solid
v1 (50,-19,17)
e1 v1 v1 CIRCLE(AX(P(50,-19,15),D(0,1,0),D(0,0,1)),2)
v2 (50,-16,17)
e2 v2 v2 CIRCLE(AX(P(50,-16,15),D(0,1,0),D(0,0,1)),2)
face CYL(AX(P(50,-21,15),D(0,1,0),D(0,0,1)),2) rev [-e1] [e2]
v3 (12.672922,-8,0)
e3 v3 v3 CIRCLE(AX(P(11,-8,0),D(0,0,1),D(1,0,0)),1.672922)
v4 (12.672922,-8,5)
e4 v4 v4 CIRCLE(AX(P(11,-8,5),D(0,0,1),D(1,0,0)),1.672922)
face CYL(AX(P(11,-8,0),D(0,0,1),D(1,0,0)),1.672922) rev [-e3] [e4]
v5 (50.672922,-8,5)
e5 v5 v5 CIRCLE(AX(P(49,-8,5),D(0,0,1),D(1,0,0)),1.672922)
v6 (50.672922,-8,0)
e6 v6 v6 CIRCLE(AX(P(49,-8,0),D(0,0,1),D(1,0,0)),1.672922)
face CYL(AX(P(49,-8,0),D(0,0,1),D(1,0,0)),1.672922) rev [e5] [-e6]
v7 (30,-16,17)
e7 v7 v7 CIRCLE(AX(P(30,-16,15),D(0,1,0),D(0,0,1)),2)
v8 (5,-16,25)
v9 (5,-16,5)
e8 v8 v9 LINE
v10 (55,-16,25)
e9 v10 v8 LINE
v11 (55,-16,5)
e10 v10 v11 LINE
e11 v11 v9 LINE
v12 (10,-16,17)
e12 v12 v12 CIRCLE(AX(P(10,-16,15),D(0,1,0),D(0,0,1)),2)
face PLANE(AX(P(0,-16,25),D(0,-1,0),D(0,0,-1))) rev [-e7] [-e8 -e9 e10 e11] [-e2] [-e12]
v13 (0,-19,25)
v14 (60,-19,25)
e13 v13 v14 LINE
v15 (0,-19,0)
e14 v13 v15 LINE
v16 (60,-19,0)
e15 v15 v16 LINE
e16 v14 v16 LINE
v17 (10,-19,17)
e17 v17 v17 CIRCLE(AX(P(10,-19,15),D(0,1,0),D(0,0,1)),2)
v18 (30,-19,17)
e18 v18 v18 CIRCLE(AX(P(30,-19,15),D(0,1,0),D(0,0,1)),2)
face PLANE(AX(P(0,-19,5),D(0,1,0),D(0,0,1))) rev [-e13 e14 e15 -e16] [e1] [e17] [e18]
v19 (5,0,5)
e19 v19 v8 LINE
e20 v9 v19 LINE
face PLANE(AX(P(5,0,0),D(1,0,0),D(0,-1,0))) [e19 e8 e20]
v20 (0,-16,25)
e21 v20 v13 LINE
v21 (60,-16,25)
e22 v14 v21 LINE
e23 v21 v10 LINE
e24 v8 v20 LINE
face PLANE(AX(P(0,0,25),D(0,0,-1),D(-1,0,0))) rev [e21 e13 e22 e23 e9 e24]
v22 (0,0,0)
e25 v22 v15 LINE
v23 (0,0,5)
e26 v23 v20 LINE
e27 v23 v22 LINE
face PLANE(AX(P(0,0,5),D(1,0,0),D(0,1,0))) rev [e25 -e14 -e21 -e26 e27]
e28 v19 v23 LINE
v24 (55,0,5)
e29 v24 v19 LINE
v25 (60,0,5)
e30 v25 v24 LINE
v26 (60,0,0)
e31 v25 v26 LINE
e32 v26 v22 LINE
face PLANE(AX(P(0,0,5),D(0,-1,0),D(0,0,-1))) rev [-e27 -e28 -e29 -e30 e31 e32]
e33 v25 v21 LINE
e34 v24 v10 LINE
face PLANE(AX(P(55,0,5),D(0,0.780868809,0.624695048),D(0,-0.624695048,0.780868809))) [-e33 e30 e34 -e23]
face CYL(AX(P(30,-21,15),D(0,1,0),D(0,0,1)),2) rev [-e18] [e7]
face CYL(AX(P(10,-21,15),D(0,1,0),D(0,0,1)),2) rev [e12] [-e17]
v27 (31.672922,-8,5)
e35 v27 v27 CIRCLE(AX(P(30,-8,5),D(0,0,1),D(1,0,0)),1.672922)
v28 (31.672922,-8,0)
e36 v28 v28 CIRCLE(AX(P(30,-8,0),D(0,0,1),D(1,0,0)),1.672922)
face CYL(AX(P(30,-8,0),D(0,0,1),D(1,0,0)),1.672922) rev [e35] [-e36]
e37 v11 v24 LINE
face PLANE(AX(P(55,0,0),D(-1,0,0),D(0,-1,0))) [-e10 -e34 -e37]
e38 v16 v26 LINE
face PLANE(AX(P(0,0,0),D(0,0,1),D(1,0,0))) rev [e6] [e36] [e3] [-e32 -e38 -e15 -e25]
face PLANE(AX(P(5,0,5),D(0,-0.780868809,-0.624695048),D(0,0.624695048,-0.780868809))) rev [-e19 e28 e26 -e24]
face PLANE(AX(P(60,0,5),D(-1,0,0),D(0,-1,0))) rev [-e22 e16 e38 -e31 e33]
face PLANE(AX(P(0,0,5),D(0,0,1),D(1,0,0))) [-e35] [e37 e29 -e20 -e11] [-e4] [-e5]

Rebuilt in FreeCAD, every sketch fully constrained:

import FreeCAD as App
import Part
import Sketcher
from FreeCAD import Vector


def add_polygon(sketch, points):
    """Adds a closed chain of lines whose ends are joined by coincident constraints."""
    first, n = sketch.GeometryCount, len(points)
    for a, b in zip(points, points[1:] + points[:1]):
        sketch.addGeometry(Part.LineSegment(App.Vector(*a, 0), App.Vector(*b, 0)), False)
    for i in range(n):
        sketch.addConstraint(Sketcher.Constraint("Coincident", first + i, 2, first + (i + 1) % n, 1))

doc = App.newDocument("Part")
body = doc.addObject("PartDesign::Body", "Body")

sketch1 = body.newObject("Sketcher::SketchObject", "Sketch")
sketch1.AttachmentSupport = (doc.getObject("XY_Plane"), [""])
sketch1.MapMode = "FlatFace"
add_polygon(sketch1, [(0, 0), (0, -19), (60, -19), (60, 0)])
sketch1.addConstraint(Sketcher.Constraint("Vertical", 0))
sketch1.addConstraint(Sketcher.Constraint("Horizontal", 1))
sketch1.addConstraint(Sketcher.Constraint("Vertical", 2))
sketch1.addConstraint(Sketcher.Constraint("Horizontal", 3))
sketch1.addConstraint(Sketcher.Constraint("Coincident", 3, 2, -1, 1))
sketch1.addConstraint(Sketcher.Constraint("DistanceX", 1, 1, 1, 2, 60.0))
sketch1.addConstraint(Sketcher.Constraint("DistanceY", 0, 2, 0, 1, 19.0))
pad1 = body.newObject("PartDesign::Pad", "Pad")
pad1.Profile = sketch1
pad1.Length = 5

sketch2 = body.newObject("Sketcher::SketchObject", "Sketch001")
sketch2.AttachmentSupport = (doc.getObject("XY_Plane"), [""])
sketch2.MapMode = "FlatFace"
sketch2.AttachmentOffset = App.Placement(Vector(0, 0, 5), App.Rotation())
add_polygon(sketch2, [(0, -16), (0, -19), (60, -19), (60, -16)])
sketch2.addConstraint(Sketcher.Constraint("Vertical", 0))
sketch2.addConstraint(Sketcher.Constraint("Horizontal", 1))
sketch2.addConstraint(Sketcher.Constraint("Vertical", 2))
sketch2.addConstraint(Sketcher.Constraint("Horizontal", 3))
sketch2.addConstraint(Sketcher.Constraint("PointOnObject", 0, 2, -2))
sketch2.addConstraint(Sketcher.Constraint("DistanceX", 1, 1, 1, 2, 60.0))
sketch2.addConstraint(Sketcher.Constraint("DistanceY", 0, 2, 0, 1, 3.0))
sketch2.addConstraint(Sketcher.Constraint("DistanceY", 0, 2, -1, 1, 19.0))
pad2 = body.newObject("PartDesign::Pad", "Pad001")
pad2.Profile = sketch2
pad2.Length = 20

sketch3 = body.newObject("Sketcher::SketchObject", "Sketch002")
sketch3.AttachmentSupport = (doc.getObject("YZ_Plane"), [""])
sketch3.MapMode = "FlatFace"
sketch3.AttachmentOffset = App.Placement(Vector(0, 0, 60), App.Rotation())
add_polygon(sketch3, [(0, 5), (-16, 25), (-16, 5)])
sketch3.addConstraint(Sketcher.Constraint("Vertical", 1))
sketch3.addConstraint(Sketcher.Constraint("Horizontal", 2))
sketch3.addConstraint(Sketcher.Constraint("PointOnObject", 2, 2, -2))
sketch3.addConstraint(Sketcher.Constraint("DistanceX", 2, 1, 2, 2, 16.0))
sketch3.addConstraint(Sketcher.Constraint("DistanceY", 1, 2, 1, 1, 20.0))
sketch3.addConstraint(Sketcher.Constraint("DistanceY", -1, 1, 0, 2, 25.0))
pad3 = body.newObject("PartDesign::Pad", "Pad002")
pad3.Profile = sketch3
pad3.Length = 5
pad3.Reversed = True
doc.recompute()

datumplane = body.newObject("PartDesign::Plane", "DatumPlane")
datumplane.AttachmentSupport = (doc.getObject("YZ_Plane"), [""])
datumplane.MapMode = "FlatFace"
datumplane.AttachmentOffset = App.Placement(Vector(0, 0, 30), App.Rotation())
mirrored = body.newObject("PartDesign::Mirrored", "Mirrored")
mirrored.Originals = [pad3]
mirrored.MirrorPlane = (datumplane, [""])
body.Tip = mirrored

sketch4 = body.newObject("Sketcher::SketchObject", "Sketch003")
sketch4.AttachmentSupport = (doc.getObject("XY_Plane"), [""])
sketch4.MapMode = "FlatFace"
sketch4.AttachmentOffset = App.Placement(Vector(0, 0, 5), App.Rotation())
sketch4.addGeometry(Part.Circle(Vector(11, -8, 0), Vector(0, 0, 1), 1.7), False)
sketch4.addGeometry(Part.Circle(Vector(30, -8, 0), Vector(0, 0, 1), 1.7), False)
sketch4.addGeometry(Part.Circle(Vector(49, -8, 0), Vector(0, 0, 1), 1.7), False)
sketch4.addConstraint(Sketcher.Constraint("Equal", 0, 1))
sketch4.addConstraint(Sketcher.Constraint("Equal", 1, 2))
sketch4.addConstraint(Sketcher.Constraint("Horizontal", 0, 3, 1, 3))
sketch4.addConstraint(Sketcher.Constraint("Horizontal", 1, 3, 2, 3))
sketch4.addConstraint(Sketcher.Constraint("DistanceX", -1, 1, 0, 3, 11.0))
sketch4.addConstraint(Sketcher.Constraint("DistanceY", 0, 3, -1, 1, 8.0))
sketch4.addConstraint(Sketcher.Constraint("DistanceX", -1, 1, 1, 3, 30.0))
sketch4.addConstraint(Sketcher.Constraint("DistanceX", -1, 1, 2, 3, 49.0))
sketch4.addConstraint(Sketcher.Constraint("Diameter", 0, 3.345843))
pocket1 = body.newObject("PartDesign::Pocket", "Pocket")
pocket1.Profile = sketch4
pocket1.Length = 5

sketch5 = body.newObject("Sketcher::SketchObject", "Sketch004")
sketch5.AttachmentSupport = (doc.getObject("XZ_Plane"), [""])
sketch5.MapMode = "FlatFace"
sketch5.AttachmentOffset = App.Placement(Vector(0, 0, 16), App.Rotation())
sketch5.addGeometry(Part.Circle(Vector(10, 15, 0), Vector(0, 0, 1), 2), False)
sketch5.addGeometry(Part.Circle(Vector(30, 15, 0), Vector(0, 0, 1), 2), False)
sketch5.addGeometry(Part.Circle(Vector(50, 15, 0), Vector(0, 0, 1), 2), False)
sketch5.addConstraint(Sketcher.Constraint("Equal", 0, 1))
sketch5.addConstraint(Sketcher.Constraint("Equal", 1, 2))
sketch5.addConstraint(Sketcher.Constraint("Horizontal", 0, 3, 1, 3))
sketch5.addConstraint(Sketcher.Constraint("Horizontal", 1, 3, 2, 3))
sketch5.addConstraint(Sketcher.Constraint("Diameter", 0, 4.0))
sketch5.addConstraint(Sketcher.Constraint("DistanceX", -1, 1, 0, 3, 10.0))
sketch5.addConstraint(Sketcher.Constraint("DistanceY", -1, 1, 0, 3, 15.0))
sketch5.addConstraint(Sketcher.Constraint("DistanceX", -1, 1, 1, 3, 30.0))
sketch5.addConstraint(Sketcher.Constraint("DistanceX", -1, 1, 2, 3, 50.0))
pocket2 = body.newObject("PartDesign::Pocket", "Pocket001")
pocket2.Profile = sketch5
pocket2.Length = 5
pocket2.Reversed = True

doc.recompute()
